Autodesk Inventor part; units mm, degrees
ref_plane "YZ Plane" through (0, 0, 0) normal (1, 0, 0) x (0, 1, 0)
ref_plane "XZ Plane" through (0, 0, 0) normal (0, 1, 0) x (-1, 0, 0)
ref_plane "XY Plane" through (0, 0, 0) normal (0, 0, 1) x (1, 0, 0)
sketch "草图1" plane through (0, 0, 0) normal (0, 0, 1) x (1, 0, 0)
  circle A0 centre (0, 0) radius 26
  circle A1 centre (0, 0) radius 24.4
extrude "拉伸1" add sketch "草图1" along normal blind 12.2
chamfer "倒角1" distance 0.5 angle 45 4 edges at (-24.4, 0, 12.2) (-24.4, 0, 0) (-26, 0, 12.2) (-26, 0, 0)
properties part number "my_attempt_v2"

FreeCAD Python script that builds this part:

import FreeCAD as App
import Part
import Sketcher


def edges_at(feature, points):
    """Names of the edges that pass closest to the given points."""
    edges = feature.Shape.Edges
    near = lambda p: min(range(len(edges)), key=lambda i: edges[i].distToShape(Part.Vertex(*p))[0])
    return sorted({f"Edge{near(p) + 1}" for p in points})

doc = App.newDocument("Part")
params = doc.addObject("Spreadsheet::Sheet", "Params")
for row, (alias, value) in enumerate([
    ("sketch1_diameter", "52 mm"),
    ("sketch1_diameter2", "48.8 mm"),
    ("pad1_length", "12.2 mm"),
    ("chamfer_size", "0.5 mm"),
], start=1):
    params.set(f"A{row}", alias)
    params.set(f"B{row}", "=" + value)
    params.setAlias(f"B{row}", alias)

body = doc.addObject("PartDesign::Body", "Body")

# Sketch on XY plane
sketch1 = body.newObject("Sketcher::SketchObject", "Sketch")
sketch1.AttachmentSupport = (doc.getObject("XY_Plane"), [""])
sketch1.MapMode = "FlatFace"
sketch1.addGeometry([
    Part.Circle(App.Vector(0, 0, 0), App.Vector(0, 0, 1), 26),
    Part.Circle(App.Vector(0, 0, 0), App.Vector(0, 0, 1), 24.4),
], False)
sketch1.addConstraint([
    Sketcher.Constraint("Coincident", 0, 3, -1, 1),
    Sketcher.Constraint("Coincident", 1, 3, -1, 1),
    Sketcher.Constraint("Diameter", 0, 52.0),
    Sketcher.Constraint("Diameter", 1, 48.8),
])
sketch1.setExpression("Constraints[2]", "Params.sketch1_diameter")
sketch1.setExpression("Constraints[3]", "Params.sketch1_diameter2")
pad1 = body.newObject("PartDesign::Pad", "Pad")
pad1.Profile = sketch1
pad1.setExpression("Length", "Params.pad1_length")
doc.recompute()

chamfer = body.newObject("PartDesign::Chamfer", "Chamfer")
chamfer.Base = (pad1, edges_at(pad1, [
    (-24.4, 0, 12.2),
    (-24.4, 0, 0),
    (-26, 0, 12.2),
    (-26, 0, 0),
]))
chamfer.setExpression("Size", "Params.chamfer_size")

doc.recompute()
